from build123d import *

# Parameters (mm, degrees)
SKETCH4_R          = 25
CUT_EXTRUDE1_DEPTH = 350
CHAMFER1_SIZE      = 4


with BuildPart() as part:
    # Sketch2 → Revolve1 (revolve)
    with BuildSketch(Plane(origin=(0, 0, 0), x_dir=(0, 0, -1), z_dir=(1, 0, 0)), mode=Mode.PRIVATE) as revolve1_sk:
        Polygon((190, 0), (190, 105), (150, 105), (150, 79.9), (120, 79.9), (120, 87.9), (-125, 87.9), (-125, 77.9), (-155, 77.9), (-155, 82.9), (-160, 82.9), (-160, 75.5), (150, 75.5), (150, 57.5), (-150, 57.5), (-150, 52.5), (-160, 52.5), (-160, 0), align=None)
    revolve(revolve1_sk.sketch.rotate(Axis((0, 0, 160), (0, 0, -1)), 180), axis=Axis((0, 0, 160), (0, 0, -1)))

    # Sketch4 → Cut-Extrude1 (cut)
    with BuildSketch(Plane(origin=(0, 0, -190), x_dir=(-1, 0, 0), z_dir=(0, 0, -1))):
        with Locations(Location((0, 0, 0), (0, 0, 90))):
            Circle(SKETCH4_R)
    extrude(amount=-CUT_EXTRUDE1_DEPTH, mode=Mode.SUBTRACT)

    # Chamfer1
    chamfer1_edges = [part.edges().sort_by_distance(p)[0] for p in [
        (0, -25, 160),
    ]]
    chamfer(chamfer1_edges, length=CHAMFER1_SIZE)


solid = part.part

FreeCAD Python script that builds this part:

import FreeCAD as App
import Part
import Sketcher
from FreeCAD import Vector
Q = App.Units.Quantity


def edges_at(feature, points):
    """Names of the edges that pass closest to the given points."""
    edges = feature.Shape.Edges
    near = lambda p: min(range(len(edges)), key=lambda i: edges[i].distToShape(Part.Vertex(*p))[0])
    return sorted({f"Edge{near(p) + 1}" for p in points})


def add_polygon(sketch, points):
    """Adds a closed chain of lines whose ends are joined by coincident constraints."""
    first, n = sketch.GeometryCount, len(points)
    for a, b in zip(points, points[1:] + points[:1]):
        sketch.addGeometry(Part.LineSegment(App.Vector(*a, 0), App.Vector(*b, 0)), False)
    for i in range(n):
        sketch.addConstraint(Sketcher.Constraint("Coincident", first + i, 2, first + (i + 1) % n, 1))

doc = App.newDocument("Part")
body = doc.addObject("PartDesign::Body", "Body")

sketch1 = doc.addObject("Sketcher::SketchObject", "Sketch")
body.addObject(sketch1)
sketch1.AttachmentSupport = (doc.YZ_Plane, [""])
sketch1.MapMode = "FlatFace"
add_polygon(sketch1, [(0, -190), (105, -190), (105, -150), (80, -150), (80, -120), (88, -120), (88, 125), (78, 125), (78, 155), (83, 155), (83, 160), (76, 160), (76, -150), (58, -150), (58, 150), (52, 150), (52, 160), (0, 160)])
sketch1.addConstraint(Sketcher.Constraint("Horizontal", 0))
sketch1.addConstraint(Sketcher.Constraint("Vertical", 1))
sketch1.addConstraint(Sketcher.Constraint("Horizontal", 2))
sketch1.addConstraint(Sketcher.Constraint("Vertical", 3))
sketch1.addConstraint(Sketcher.Constraint("Horizontal", 4))
sketch1.addConstraint(Sketcher.Constraint("Vertical", 5))
sketch1.addConstraint(Sketcher.Constraint("Horizontal", 6))
sketch1.addConstraint(Sketcher.Constraint("Vertical", 7))
sketch1.addConstraint(Sketcher.Constraint("Horizontal", 8))
sketch1.addConstraint(Sketcher.Constraint("Vertical", 9))
sketch1.addConstraint(Sketcher.Constraint("Horizontal", 10))
sketch1.addConstraint(Sketcher.Constraint("Vertical", 11))
sketch1.addConstraint(Sketcher.Constraint("Horizontal", 12))
sketch1.addConstraint(Sketcher.Constraint("Vertical", 13))
sketch1.addConstraint(Sketcher.Constraint("Horizontal", 14))
sketch1.addConstraint(Sketcher.Constraint("Vertical", 15))
sketch1.addConstraint(Sketcher.Constraint("Horizontal", 16))
sketch1.addConstraint(Sketcher.Constraint("Vertical", 17))
sketch1.addConstraint(Sketcher.Constraint("PointOnObject", 16, 2, -2))
sketch1.addConstraint(Sketcher.Constraint("Horizontal", 2, 2, 11, 2))
sketch1.addConstraint(Sketcher.Constraint("Horizontal", 10, 2, 15, 2))
sketch1.addConstraint(Sketcher.Constraint("Equal", 8, 14))
sketch1.addConstraint(Sketcher.Constraint("Equal", 3, 7))
sketch1.addConstraint(Sketcher.Constraint("Equal", 14, 9))
sketch1.addConstraint(Sketcher.Constraint("Equal", 6, 15))
sketch1.addConstraint(Sketcher.Constraint("DistanceX", 0, 1, 0, 2, Q("105 mm")))
sketch1.addConstraint(Sketcher.Constraint("DistanceX", 4, 1, 4, 2, Q("8 mm")))
sketch1.addConstraint(Sketcher.Constraint("DistanceX", 6, 2, 6, 1, Q("10 mm")))
sketch1.addConstraint(Sketcher.Constraint("DistanceX", 8, 1, 8, 2, Q("5 mm")))
sketch1.addConstraint(Sketcher.Constraint("DistanceX", 12, 2, 12, 1, Q("18 mm")))
sketch1.addConstraint(Sketcher.Constraint("DistanceY", 1, 1, 1, 2, Q("40 mm")))
sketch1.addConstraint(Sketcher.Constraint("DistanceY", 3, 1, 3, 2, Q("30 mm")))
sketch1.addConstraint(Sketcher.Constraint("DistanceY", 5, 1, 5, 2, Q("245 mm")))
sketch1.addConstraint(Sketcher.Constraint("DistanceX", 2, 2, 2, 1, Q("25.1 mm")))
sketch1.addConstraint(Sketcher.Constraint("DistanceX", 10, 2, 10, 1, Q("7.4 mm")))
sketch1.addConstraint(Sketcher.Constraint("DistanceY", 0, 2, -1, 1, Q("190 mm")))
revolution = doc.addObject("PartDesign::Revolution", "Revolution")
body.addObject(revolution)
revolution.Profile = sketch1
revolution.ReferenceAxis = (sketch1, ["V_Axis"])
revolution.Angle = 360

sketch2 = doc.addObject("Sketcher::SketchObject", "Sketch001")
body.addObject(sketch2)
sketch2.AttachmentSupport = (doc.XY_Plane, [""])
sketch2.MapMode = "FlatFace"
sketch2.AttachmentOffset = App.Placement(Vector(0, 0, -190), App.Rotation())
sketch2.addGeometry(Part.Circle(Vector(0, 0, 0), Vector(0, 0, 1), 25), False)
sketch2.addConstraint(Sketcher.Constraint("Coincident", 0, 3, -1, 1))
sketch2.addConstraint(Sketcher.Constraint("Diameter", 0, Q("50 mm")))
pocket1 = doc.addObject("PartDesign::Pocket", "Pocket")
body.addObject(pocket1)
pocket1.Profile = sketch2
pocket1.Length = 350
pocket1.Reversed = True
doc.recompute()

chamfer = doc.addObject("PartDesign::Chamfer", "Chamfer")
body.addObject(chamfer)
chamfer.Base = (pocket1, edges_at(pocket1, [(0, -25, 160)]))
chamfer.Size = 4

doc.recompute()
